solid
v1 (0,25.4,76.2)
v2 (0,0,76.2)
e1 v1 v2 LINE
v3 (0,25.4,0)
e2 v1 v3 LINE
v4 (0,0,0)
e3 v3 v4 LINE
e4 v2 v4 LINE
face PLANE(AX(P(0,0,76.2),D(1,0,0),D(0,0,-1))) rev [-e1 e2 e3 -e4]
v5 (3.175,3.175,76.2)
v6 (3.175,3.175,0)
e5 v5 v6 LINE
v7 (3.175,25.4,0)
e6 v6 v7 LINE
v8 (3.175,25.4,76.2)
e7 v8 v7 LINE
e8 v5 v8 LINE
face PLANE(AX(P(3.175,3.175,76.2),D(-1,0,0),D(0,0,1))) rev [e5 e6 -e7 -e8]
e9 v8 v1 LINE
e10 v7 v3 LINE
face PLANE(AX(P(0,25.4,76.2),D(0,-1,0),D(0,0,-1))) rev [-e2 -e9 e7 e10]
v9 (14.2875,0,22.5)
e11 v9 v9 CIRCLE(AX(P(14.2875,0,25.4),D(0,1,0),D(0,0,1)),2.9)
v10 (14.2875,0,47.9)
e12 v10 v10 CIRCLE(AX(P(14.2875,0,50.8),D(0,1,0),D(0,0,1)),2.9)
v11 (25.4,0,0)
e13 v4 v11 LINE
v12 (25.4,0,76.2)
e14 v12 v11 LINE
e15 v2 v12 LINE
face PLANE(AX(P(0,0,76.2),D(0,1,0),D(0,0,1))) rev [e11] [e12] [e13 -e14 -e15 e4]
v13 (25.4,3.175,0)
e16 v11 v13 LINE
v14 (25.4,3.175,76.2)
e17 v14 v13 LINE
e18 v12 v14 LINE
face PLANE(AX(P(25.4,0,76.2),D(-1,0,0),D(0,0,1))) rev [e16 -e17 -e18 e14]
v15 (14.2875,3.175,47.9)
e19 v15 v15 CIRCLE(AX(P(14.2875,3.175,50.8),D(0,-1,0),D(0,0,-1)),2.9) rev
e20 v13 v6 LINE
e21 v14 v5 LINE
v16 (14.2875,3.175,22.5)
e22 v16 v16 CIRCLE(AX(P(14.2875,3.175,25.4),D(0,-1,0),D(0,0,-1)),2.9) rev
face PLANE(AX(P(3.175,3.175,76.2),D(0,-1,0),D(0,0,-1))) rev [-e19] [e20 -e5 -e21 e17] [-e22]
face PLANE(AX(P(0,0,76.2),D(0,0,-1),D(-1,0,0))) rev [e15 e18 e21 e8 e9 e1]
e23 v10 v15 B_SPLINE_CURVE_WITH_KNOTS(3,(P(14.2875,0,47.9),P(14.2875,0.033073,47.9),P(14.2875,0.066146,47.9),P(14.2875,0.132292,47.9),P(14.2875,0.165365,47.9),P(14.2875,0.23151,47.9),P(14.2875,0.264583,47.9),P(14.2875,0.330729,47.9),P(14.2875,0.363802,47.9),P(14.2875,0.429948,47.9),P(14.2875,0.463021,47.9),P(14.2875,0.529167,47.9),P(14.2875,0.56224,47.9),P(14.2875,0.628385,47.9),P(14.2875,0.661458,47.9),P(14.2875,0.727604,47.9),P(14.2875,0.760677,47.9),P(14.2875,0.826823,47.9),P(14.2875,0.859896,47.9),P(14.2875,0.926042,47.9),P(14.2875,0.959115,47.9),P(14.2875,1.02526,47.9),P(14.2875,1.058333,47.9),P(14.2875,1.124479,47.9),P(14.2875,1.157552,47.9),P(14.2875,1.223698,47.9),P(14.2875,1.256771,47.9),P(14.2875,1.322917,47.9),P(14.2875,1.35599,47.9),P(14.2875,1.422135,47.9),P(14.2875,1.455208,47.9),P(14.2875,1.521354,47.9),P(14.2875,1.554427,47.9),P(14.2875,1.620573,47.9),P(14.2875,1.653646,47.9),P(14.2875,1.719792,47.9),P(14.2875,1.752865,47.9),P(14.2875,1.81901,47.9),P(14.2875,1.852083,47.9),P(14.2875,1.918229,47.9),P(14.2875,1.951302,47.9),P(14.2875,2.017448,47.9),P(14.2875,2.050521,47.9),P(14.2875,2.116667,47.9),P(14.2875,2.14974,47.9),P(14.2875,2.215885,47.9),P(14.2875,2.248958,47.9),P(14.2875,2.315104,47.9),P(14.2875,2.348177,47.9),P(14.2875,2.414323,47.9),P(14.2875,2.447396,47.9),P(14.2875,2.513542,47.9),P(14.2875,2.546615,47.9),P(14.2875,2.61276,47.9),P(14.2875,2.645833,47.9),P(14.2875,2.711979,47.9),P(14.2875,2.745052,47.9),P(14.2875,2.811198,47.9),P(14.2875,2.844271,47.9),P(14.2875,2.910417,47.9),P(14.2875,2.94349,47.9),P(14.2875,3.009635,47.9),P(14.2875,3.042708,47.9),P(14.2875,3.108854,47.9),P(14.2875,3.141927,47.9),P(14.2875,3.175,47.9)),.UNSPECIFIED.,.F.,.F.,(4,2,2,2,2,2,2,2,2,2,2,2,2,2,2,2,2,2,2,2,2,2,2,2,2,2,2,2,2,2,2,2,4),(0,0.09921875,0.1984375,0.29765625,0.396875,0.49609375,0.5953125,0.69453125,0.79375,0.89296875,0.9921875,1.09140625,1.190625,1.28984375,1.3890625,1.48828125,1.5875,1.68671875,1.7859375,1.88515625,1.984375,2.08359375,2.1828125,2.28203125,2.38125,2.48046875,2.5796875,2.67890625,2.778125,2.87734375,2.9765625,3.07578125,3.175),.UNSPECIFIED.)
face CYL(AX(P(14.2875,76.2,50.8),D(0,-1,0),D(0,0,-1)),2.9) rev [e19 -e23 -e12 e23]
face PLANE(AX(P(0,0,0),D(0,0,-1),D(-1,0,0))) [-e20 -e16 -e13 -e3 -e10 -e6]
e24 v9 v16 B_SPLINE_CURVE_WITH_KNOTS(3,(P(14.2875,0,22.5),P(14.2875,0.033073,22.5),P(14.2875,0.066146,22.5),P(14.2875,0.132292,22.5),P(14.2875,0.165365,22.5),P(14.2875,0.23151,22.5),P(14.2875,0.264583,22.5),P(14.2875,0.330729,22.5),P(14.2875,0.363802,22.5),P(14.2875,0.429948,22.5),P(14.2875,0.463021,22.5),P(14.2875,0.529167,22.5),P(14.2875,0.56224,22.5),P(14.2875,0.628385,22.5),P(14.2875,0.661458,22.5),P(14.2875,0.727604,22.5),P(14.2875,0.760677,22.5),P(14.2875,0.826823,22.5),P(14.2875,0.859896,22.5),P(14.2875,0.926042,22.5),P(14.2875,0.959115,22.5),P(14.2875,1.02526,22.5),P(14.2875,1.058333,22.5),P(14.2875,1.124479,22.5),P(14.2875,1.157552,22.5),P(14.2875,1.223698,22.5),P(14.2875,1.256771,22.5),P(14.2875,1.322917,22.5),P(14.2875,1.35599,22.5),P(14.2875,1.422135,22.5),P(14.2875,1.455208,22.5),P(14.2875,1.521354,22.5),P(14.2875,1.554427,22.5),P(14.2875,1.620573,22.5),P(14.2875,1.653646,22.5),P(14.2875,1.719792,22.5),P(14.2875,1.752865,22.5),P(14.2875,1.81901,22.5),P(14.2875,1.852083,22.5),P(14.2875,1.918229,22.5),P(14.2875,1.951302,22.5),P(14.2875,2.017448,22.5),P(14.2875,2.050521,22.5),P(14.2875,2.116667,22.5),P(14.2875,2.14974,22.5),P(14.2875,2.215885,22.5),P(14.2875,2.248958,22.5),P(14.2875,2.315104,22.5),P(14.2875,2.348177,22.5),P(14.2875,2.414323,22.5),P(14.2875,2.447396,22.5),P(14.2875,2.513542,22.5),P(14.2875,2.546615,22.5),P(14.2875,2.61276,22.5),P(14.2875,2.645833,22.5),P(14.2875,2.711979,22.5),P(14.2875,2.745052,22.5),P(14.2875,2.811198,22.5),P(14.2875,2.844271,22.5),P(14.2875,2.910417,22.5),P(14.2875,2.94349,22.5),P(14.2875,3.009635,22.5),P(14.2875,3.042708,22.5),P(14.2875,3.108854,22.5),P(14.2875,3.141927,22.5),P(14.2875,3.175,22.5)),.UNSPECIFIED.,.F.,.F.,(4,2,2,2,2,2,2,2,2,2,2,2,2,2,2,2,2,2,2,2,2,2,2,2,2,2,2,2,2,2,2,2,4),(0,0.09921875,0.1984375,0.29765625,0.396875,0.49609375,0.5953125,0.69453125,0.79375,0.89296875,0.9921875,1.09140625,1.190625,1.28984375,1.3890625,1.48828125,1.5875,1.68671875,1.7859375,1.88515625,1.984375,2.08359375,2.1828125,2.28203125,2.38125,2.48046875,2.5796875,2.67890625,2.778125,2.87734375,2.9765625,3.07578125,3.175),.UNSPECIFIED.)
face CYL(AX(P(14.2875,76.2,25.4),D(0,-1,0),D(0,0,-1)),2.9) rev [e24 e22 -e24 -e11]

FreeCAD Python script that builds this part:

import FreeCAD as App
import Part
import Sketcher
from FreeCAD import Vector
Q = App.Units.Quantity

doc = App.newDocument("Part")
params = doc.addObject("Spreadsheet::Sheet", "Params")
for row, (alias, value) in enumerate([
    ("sketch1_width", "1 in"),
    ("sketch1_width2", "0.875 in"),
    ("pad1_length", "3 in"),
    ("pocket1_length", "3 in"),
], start=1):
    params.set(f"A{row}", alias)
    params.set(f"B{row}", "=" + value)
    params.setAlias(f"B{row}", alias)

body = doc.addObject("PartDesign::Body", "Body")

sketch1 = body.newObject("Sketcher::SketchObject", "Sketch")
sketch1.AttachmentSupport = (doc.getObject("XY_Plane"), [""])
sketch1.MapMode = "FlatFace"
sketch1.addGeometry(Part.LineSegment(Vector(0, 0, 0), Vector(25.4, 0, 0)), False)
sketch1.addGeometry(Part.LineSegment(Vector(25.4, 0, 0), Vector(25.4, 3.2, 0)), False)
sketch1.addGeometry(Part.LineSegment(Vector(25.4, 3.2, 0), Vector(3.2, 3.2, 0)), False)
sketch1.addGeometry(Part.LineSegment(Vector(3.2, 3.2, 0), Vector(3.2, 25.4, 0)), False)
sketch1.addGeometry(Part.LineSegment(Vector(3.2, 25.4, 0), Vector(0, 25.4, 0)), False)
sketch1.addGeometry(Part.LineSegment(Vector(0, 25.4, 0), Vector(0, 0, 0)), False)
sketch1.addConstraint(Sketcher.Constraint("Coincident", 0, 2, 1, 1))
sketch1.addConstraint(Sketcher.Constraint("Coincident", 1, 2, 2, 1))
sketch1.addConstraint(Sketcher.Constraint("Coincident", 2, 2, 3, 1))
sketch1.addConstraint(Sketcher.Constraint("Coincident", 3, 2, 4, 1))
sketch1.addConstraint(Sketcher.Constraint("Coincident", 4, 2, 5, 1))
sketch1.addConstraint(Sketcher.Constraint("Coincident", 5, 2, 0, 1))
sketch1.addConstraint(Sketcher.Constraint("Horizontal", 0))
sketch1.addConstraint(Sketcher.Constraint("Vertical", 1))
sketch1.addConstraint(Sketcher.Constraint("Horizontal", 2))
sketch1.addConstraint(Sketcher.Constraint("Vertical", 3))
sketch1.addConstraint(Sketcher.Constraint("Horizontal", 4))
sketch1.addConstraint(Sketcher.Constraint("Vertical", 5))
sketch1.addConstraint(Sketcher.Constraint("Coincident", 5, 2, -1, 1))
sketch1.addConstraint(Sketcher.Constraint("Equal", 4, 1))
sketch1.addConstraint(Sketcher.Constraint("Equal", 2, 3))
sketch1.addConstraint(Sketcher.Constraint("DistanceX", 0, 1, 0, 2, Q("1 in")))
sketch1.addConstraint(Sketcher.Constraint("DistanceX", 2, 2, 2, 1, Q("0.875 in")))
sketch1.setExpression("Constraints[15]", "Params.sketch1_width")
sketch1.setExpression("Constraints[16]", "Params.sketch1_width2")
pad1 = body.newObject("PartDesign::Pad", "Pad")
pad1.Profile = sketch1
pad1.setExpression("Length", "Params.pad1_length")

sketch2 = body.newObject("Sketcher::SketchObject", "Sketch001")
sketch2.AttachmentSupport = (doc.getObject("XZ_Plane"), [""])
sketch2.MapMode = "FlatFace"
sketch2.addGeometry(Part.Circle(Vector(14.3, 25.4, 0), Vector(0, 0, 1), 2.9), False)
sketch2.addGeometry(Part.Circle(Vector(14.3, 50.8, 0), Vector(0, 0, 1), 2.9), False)
sketch2.addConstraint(Sketcher.Constraint("Equal", 0, 1))
sketch2.addConstraint(Sketcher.Constraint("Vertical", 0, 3, 1, 3))
sketch2.addConstraint(Sketcher.Constraint("DistanceY", -1, 1, 0, 3, Q("1 in")))
sketch2.addConstraint(Sketcher.Constraint("DistanceY", -1, 1, 1, 3, Q("2 in")))
sketch2.addConstraint(Sketcher.Constraint("Diameter", 0, Q("5.8 mm")))
sketch2.addConstraint(Sketcher.Constraint("DistanceX", -1, 1, 0, 3, Q("0.5625 in")))
pocket1 = body.newObject("PartDesign::Pocket", "Pocket")
pocket1.Profile = sketch2
pocket1.setExpression("Length", "Params.pocket1_length")

doc.recompute()
